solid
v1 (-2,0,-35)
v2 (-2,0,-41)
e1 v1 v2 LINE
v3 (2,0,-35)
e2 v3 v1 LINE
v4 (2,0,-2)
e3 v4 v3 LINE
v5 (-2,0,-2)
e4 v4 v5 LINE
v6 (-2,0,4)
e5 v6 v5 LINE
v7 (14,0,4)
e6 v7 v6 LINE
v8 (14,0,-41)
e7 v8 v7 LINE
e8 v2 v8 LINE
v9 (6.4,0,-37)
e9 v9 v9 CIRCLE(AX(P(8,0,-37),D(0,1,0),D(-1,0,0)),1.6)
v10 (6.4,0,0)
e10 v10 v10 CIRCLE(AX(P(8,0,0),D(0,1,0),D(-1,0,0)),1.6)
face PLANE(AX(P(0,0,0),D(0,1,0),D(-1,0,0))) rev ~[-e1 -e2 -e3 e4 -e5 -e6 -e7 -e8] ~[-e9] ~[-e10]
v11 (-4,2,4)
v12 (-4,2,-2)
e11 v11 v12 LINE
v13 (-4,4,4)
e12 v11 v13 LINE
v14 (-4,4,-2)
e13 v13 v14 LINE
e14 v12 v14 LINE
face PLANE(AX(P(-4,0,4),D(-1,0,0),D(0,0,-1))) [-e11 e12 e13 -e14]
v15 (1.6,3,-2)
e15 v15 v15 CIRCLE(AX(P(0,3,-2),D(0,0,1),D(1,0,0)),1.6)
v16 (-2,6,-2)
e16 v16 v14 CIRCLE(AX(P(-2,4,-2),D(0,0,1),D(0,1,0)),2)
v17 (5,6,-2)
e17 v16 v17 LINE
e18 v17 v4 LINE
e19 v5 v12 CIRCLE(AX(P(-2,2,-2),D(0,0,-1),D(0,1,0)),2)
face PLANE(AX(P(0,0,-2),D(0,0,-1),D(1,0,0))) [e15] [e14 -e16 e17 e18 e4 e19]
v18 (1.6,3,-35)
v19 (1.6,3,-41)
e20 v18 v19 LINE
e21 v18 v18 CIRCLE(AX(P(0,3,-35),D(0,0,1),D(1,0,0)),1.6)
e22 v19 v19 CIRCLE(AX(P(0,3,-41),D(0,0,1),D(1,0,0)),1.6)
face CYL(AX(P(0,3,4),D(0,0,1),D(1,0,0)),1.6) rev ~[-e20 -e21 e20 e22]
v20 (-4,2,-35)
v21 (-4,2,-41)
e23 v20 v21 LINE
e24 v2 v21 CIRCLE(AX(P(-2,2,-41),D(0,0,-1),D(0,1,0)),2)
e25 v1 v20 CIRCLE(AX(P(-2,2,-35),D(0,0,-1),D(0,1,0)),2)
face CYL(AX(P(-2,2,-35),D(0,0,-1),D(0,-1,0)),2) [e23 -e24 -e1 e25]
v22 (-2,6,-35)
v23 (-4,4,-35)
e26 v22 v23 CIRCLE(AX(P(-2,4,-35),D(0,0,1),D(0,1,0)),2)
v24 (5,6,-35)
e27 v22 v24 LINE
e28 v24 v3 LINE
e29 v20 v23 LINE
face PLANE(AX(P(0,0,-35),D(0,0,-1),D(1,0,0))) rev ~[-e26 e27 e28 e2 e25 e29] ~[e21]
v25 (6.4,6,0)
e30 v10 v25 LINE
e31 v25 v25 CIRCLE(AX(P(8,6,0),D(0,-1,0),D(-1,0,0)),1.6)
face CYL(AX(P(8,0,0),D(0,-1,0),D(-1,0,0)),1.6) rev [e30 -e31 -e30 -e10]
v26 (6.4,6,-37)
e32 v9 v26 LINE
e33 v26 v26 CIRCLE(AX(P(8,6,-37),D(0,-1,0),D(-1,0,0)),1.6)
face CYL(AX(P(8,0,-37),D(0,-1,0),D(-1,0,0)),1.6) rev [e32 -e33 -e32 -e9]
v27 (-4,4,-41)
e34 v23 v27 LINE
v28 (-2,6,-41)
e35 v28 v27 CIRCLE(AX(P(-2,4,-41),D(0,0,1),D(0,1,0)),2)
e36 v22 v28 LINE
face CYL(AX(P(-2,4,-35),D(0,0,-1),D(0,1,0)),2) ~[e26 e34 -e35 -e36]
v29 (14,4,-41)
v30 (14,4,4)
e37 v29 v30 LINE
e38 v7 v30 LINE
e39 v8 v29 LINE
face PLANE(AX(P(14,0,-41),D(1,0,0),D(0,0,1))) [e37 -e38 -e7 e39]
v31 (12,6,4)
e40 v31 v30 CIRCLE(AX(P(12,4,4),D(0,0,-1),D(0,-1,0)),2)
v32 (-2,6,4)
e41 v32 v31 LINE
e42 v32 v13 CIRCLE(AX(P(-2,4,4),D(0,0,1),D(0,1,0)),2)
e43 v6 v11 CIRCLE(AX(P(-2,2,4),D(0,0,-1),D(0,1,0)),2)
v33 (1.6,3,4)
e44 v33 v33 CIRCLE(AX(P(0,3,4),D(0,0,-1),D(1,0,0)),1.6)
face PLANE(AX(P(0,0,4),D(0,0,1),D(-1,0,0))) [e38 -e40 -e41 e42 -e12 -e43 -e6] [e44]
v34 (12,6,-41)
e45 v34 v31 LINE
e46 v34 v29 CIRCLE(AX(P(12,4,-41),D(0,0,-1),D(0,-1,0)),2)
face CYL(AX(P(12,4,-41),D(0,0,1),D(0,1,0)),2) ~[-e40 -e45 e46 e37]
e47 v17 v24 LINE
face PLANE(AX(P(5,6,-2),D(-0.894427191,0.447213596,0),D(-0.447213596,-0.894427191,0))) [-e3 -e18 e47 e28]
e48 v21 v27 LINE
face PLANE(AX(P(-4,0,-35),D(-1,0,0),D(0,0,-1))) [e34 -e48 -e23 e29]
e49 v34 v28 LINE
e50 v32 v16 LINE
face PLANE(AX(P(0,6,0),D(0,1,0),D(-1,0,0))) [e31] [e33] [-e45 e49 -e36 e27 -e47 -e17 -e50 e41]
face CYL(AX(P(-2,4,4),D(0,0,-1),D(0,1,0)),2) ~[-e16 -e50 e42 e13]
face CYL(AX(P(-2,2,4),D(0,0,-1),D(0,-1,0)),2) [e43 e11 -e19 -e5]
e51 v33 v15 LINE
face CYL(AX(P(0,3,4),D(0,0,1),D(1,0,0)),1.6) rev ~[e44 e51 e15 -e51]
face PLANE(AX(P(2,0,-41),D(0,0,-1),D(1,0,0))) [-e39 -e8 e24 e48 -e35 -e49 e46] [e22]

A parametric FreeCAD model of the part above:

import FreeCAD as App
import Part
import Sketcher

V = App.Vector
Q = App.Units.Quantity


def edges_at(feature, points):
    """Names of the edges that pass closest to the given points."""
    edges = feature.Shape.Edges
    near = lambda p: min(range(len(edges)), key=lambda i: edges[i].distToShape(Part.Vertex(*p))[0])
    return sorted({f"Edge{near(p) + 1}" for p in points})

doc = App.newDocument("Part")
params = doc.addObject("Spreadsheet::Sheet", "Params")
for row, (alias, value) in enumerate([
    ("sketch1_diameter", "3.2 mm"),
    ("sketch1_width", "6 mm"),
    ("sketch1_height", "45 mm"),
    ("pad1_length", "6 mm"),
    ("sketch2_diameter", "3.2 mm"),
    ("pocket1_length", "45 mm"),
    ("fillet_radius", "2 mm"),
    ("sketch3_width", "3 mm"),
    ("sketch3_height", "6 mm"),
    ("pocket2_length", "33 mm"),
], start=1):
    params.set(f"A{row}", alias)
    params.set(f"B{row}", "=" + value)
    params.setAlias(f"B{row}", alias)

body = doc.addObject("PartDesign::Body", "Body")

sketch1 = doc.addObject("Sketcher::SketchObject", "Sketch")
body.addObject(sketch1)
sketch1.AttachmentSupport = (doc.XZ_Plane, [""])
sketch1.MapMode = "FlatFace"
sketch1.addGeometry([
    Part.LineSegment(V(2, -2, 0), V(-4, -2, 0)),
    Part.LineSegment(V(-4, -2, 0), V(-4, 4, 0)),
    Part.LineSegment(V(-4, 4, 0), V(14, 4, 0)),
    Part.LineSegment(V(14, 4, 0), V(14, -41, 0)),
    Part.LineSegment(V(14, -41, 0), V(-4, -41, 0)),
    Part.LineSegment(V(-4, -41, 0), V(-4, -35, 0)),
    Part.LineSegment(V(-4, -35, 0), V(2, -35, 0)),
    Part.LineSegment(V(2, -35, 0), V(2, -2, 0)),
    Part.Circle(V(8, -37, 0), V(0, 0, 1), 1.6),
    Part.Circle(V(8, 0, 0), V(0, 0, 1), 1.6),
], False)
sketch1.addConstraint([
    Sketcher.Constraint("Coincident", 0, 2, 1, 1),
    Sketcher.Constraint("Coincident", 1, 2, 2, 1),
    Sketcher.Constraint("Coincident", 2, 2, 3, 1),
    Sketcher.Constraint("Coincident", 3, 2, 4, 1),
    Sketcher.Constraint("Coincident", 4, 2, 5, 1),
    Sketcher.Constraint("Coincident", 5, 2, 6, 1),
    Sketcher.Constraint("Coincident", 6, 2, 7, 1),
    Sketcher.Constraint("Coincident", 7, 2, 0, 1),
    Sketcher.Constraint("Horizontal", 0),
    Sketcher.Constraint("Vertical", 1),
    Sketcher.Constraint("Horizontal", 2),
    Sketcher.Constraint("Vertical", 3),
    Sketcher.Constraint("Horizontal", 4),
    Sketcher.Constraint("Vertical", 5),
    Sketcher.Constraint("Horizontal", 6),
    Sketcher.Constraint("Vertical", 7),
    Sketcher.Constraint("Equal", 8, 9),
    Sketcher.Constraint("PointOnObject", 9, 3, -1),
    Sketcher.Constraint("Vertical", 8, 3, 9, 3),
    Sketcher.Constraint("Vertical", 1, 2, 4, 2),
    Sketcher.Constraint("Equal", 6, 1),
    Sketcher.Constraint("Equal", 1, 5),
    Sketcher.Constraint("Diameter", 8, Q("3.2 mm")),
    Sketcher.Constraint("DistanceX", 0, 2, 0, 1, Q("6 mm")),
    Sketcher.Constraint("DistanceY", 3, 2, 3, 1, Q("45 mm")),
    Sketcher.Constraint("DistanceX", -1, 1, 8, 3, Q("8 mm")),
    Sketcher.Constraint("DistanceY", 8, 3, -1, 1, Q("37 mm")),
    Sketcher.Constraint("DistanceX", 0, 2, -1, 1, Q("4 mm")),
    Sketcher.Constraint("DistanceY", -1, 1, 1, 2, Q("4 mm")),
    Sketcher.Constraint("DistanceX", 9, 3, 2, 2, Q("6 mm")),
])
sketch1.setExpression("Constraints[22]", "Params.sketch1_diameter")
sketch1.setExpression("Constraints[23]", "Params.sketch1_width")
sketch1.setExpression("Constraints[24]", "Params.sketch1_height")
pad1 = doc.addObject("PartDesign::Pad", "Pad")
body.addObject(pad1)
pad1.Profile = sketch1
pad1.setExpression("Length", "Params.pad1_length")
pad1.Reversed = True

sketch2 = doc.addObject("Sketcher::SketchObject", "Sketch001")
body.addObject(sketch2)
sketch2.AttachmentSupport = (doc.XY_Plane, [""])
sketch2.MapMode = "FlatFace"
sketch2.AttachmentOffset = App.Placement(V(0, 0, 4), App.Rotation())
sketch2.addGeometry(Part.Circle(V(0, 3, 0), V(0, 0, 1), 1.6), False)
sketch2.addConstraint([
    Sketcher.Constraint("PointOnObject", 0, 3, -2),
    Sketcher.Constraint("Diameter", 0, Q("3.2 mm")),
    Sketcher.Constraint("DistanceY", -1, 1, 0, 3, Q("3 mm")),
])
sketch2.setExpression("Constraints[1]", "Params.sketch2_diameter")
pocket1 = doc.addObject("PartDesign::Pocket", "Pocket")
body.addObject(pocket1)
pocket1.Profile = sketch2
pocket1.setExpression("Length", "Params.pocket1_length")
doc.recompute()

fillet = doc.addObject("PartDesign::Fillet", "Fillet")
body.addObject(fillet)
fillet.Base = (pocket1, edges_at(pocket1, [
    (-4, 6, 1),
    (-4, 6, -38),
    (-4, 0, -38),
    (-4, 0, 1),
    (14, 6, -18.5),
]))
fillet.setExpression("Radius", "Params.fillet_radius")

sketch3 = doc.addObject("Sketcher::SketchObject", "Sketch002")
body.addObject(sketch3)
sketch3.AttachmentSupport = (doc.XY_Plane, [""])
sketch3.MapMode = "FlatFace"
sketch3.AttachmentOffset = App.Placement(V(0, 0, -2), App.Rotation())
sketch3.addGeometry([
    Part.LineSegment(V(5, 6, 0), V(2, 0, 0)),
    Part.LineSegment(V(2, 0, 0), V(2, 6, 0)),
    Part.LineSegment(V(2, 6, 0), V(5, 6, 0)),
], False)
sketch3.addConstraint([
    Sketcher.Constraint("Coincident", 0, 2, 1, 1),
    Sketcher.Constraint("Coincident", 1, 2, 2, 1),
    Sketcher.Constraint("Coincident", 2, 2, 0, 1),
    Sketcher.Constraint("Vertical", 1),
    Sketcher.Constraint("Horizontal", 2),
    Sketcher.Constraint("PointOnObject", 0, 2, -1),
    Sketcher.Constraint("DistanceX", 2, 1, 2, 2, Q("3 mm")),
    Sketcher.Constraint("DistanceY", 1, 1, 1, 2, Q("6 mm")),
    Sketcher.Constraint("DistanceX", -1, 1, 0, 2, Q("2 mm")),
])
sketch3.setExpression("Constraints[6]", "Params.sketch3_width")
sketch3.setExpression("Constraints[7]", "Params.sketch3_height")
pocket2 = doc.addObject("PartDesign::Pocket", "Pocket001")
body.addObject(pocket2)
pocket2.Profile = sketch3
pocket2.setExpression("Length", "Params.pocket2_length")

doc.recompute()
